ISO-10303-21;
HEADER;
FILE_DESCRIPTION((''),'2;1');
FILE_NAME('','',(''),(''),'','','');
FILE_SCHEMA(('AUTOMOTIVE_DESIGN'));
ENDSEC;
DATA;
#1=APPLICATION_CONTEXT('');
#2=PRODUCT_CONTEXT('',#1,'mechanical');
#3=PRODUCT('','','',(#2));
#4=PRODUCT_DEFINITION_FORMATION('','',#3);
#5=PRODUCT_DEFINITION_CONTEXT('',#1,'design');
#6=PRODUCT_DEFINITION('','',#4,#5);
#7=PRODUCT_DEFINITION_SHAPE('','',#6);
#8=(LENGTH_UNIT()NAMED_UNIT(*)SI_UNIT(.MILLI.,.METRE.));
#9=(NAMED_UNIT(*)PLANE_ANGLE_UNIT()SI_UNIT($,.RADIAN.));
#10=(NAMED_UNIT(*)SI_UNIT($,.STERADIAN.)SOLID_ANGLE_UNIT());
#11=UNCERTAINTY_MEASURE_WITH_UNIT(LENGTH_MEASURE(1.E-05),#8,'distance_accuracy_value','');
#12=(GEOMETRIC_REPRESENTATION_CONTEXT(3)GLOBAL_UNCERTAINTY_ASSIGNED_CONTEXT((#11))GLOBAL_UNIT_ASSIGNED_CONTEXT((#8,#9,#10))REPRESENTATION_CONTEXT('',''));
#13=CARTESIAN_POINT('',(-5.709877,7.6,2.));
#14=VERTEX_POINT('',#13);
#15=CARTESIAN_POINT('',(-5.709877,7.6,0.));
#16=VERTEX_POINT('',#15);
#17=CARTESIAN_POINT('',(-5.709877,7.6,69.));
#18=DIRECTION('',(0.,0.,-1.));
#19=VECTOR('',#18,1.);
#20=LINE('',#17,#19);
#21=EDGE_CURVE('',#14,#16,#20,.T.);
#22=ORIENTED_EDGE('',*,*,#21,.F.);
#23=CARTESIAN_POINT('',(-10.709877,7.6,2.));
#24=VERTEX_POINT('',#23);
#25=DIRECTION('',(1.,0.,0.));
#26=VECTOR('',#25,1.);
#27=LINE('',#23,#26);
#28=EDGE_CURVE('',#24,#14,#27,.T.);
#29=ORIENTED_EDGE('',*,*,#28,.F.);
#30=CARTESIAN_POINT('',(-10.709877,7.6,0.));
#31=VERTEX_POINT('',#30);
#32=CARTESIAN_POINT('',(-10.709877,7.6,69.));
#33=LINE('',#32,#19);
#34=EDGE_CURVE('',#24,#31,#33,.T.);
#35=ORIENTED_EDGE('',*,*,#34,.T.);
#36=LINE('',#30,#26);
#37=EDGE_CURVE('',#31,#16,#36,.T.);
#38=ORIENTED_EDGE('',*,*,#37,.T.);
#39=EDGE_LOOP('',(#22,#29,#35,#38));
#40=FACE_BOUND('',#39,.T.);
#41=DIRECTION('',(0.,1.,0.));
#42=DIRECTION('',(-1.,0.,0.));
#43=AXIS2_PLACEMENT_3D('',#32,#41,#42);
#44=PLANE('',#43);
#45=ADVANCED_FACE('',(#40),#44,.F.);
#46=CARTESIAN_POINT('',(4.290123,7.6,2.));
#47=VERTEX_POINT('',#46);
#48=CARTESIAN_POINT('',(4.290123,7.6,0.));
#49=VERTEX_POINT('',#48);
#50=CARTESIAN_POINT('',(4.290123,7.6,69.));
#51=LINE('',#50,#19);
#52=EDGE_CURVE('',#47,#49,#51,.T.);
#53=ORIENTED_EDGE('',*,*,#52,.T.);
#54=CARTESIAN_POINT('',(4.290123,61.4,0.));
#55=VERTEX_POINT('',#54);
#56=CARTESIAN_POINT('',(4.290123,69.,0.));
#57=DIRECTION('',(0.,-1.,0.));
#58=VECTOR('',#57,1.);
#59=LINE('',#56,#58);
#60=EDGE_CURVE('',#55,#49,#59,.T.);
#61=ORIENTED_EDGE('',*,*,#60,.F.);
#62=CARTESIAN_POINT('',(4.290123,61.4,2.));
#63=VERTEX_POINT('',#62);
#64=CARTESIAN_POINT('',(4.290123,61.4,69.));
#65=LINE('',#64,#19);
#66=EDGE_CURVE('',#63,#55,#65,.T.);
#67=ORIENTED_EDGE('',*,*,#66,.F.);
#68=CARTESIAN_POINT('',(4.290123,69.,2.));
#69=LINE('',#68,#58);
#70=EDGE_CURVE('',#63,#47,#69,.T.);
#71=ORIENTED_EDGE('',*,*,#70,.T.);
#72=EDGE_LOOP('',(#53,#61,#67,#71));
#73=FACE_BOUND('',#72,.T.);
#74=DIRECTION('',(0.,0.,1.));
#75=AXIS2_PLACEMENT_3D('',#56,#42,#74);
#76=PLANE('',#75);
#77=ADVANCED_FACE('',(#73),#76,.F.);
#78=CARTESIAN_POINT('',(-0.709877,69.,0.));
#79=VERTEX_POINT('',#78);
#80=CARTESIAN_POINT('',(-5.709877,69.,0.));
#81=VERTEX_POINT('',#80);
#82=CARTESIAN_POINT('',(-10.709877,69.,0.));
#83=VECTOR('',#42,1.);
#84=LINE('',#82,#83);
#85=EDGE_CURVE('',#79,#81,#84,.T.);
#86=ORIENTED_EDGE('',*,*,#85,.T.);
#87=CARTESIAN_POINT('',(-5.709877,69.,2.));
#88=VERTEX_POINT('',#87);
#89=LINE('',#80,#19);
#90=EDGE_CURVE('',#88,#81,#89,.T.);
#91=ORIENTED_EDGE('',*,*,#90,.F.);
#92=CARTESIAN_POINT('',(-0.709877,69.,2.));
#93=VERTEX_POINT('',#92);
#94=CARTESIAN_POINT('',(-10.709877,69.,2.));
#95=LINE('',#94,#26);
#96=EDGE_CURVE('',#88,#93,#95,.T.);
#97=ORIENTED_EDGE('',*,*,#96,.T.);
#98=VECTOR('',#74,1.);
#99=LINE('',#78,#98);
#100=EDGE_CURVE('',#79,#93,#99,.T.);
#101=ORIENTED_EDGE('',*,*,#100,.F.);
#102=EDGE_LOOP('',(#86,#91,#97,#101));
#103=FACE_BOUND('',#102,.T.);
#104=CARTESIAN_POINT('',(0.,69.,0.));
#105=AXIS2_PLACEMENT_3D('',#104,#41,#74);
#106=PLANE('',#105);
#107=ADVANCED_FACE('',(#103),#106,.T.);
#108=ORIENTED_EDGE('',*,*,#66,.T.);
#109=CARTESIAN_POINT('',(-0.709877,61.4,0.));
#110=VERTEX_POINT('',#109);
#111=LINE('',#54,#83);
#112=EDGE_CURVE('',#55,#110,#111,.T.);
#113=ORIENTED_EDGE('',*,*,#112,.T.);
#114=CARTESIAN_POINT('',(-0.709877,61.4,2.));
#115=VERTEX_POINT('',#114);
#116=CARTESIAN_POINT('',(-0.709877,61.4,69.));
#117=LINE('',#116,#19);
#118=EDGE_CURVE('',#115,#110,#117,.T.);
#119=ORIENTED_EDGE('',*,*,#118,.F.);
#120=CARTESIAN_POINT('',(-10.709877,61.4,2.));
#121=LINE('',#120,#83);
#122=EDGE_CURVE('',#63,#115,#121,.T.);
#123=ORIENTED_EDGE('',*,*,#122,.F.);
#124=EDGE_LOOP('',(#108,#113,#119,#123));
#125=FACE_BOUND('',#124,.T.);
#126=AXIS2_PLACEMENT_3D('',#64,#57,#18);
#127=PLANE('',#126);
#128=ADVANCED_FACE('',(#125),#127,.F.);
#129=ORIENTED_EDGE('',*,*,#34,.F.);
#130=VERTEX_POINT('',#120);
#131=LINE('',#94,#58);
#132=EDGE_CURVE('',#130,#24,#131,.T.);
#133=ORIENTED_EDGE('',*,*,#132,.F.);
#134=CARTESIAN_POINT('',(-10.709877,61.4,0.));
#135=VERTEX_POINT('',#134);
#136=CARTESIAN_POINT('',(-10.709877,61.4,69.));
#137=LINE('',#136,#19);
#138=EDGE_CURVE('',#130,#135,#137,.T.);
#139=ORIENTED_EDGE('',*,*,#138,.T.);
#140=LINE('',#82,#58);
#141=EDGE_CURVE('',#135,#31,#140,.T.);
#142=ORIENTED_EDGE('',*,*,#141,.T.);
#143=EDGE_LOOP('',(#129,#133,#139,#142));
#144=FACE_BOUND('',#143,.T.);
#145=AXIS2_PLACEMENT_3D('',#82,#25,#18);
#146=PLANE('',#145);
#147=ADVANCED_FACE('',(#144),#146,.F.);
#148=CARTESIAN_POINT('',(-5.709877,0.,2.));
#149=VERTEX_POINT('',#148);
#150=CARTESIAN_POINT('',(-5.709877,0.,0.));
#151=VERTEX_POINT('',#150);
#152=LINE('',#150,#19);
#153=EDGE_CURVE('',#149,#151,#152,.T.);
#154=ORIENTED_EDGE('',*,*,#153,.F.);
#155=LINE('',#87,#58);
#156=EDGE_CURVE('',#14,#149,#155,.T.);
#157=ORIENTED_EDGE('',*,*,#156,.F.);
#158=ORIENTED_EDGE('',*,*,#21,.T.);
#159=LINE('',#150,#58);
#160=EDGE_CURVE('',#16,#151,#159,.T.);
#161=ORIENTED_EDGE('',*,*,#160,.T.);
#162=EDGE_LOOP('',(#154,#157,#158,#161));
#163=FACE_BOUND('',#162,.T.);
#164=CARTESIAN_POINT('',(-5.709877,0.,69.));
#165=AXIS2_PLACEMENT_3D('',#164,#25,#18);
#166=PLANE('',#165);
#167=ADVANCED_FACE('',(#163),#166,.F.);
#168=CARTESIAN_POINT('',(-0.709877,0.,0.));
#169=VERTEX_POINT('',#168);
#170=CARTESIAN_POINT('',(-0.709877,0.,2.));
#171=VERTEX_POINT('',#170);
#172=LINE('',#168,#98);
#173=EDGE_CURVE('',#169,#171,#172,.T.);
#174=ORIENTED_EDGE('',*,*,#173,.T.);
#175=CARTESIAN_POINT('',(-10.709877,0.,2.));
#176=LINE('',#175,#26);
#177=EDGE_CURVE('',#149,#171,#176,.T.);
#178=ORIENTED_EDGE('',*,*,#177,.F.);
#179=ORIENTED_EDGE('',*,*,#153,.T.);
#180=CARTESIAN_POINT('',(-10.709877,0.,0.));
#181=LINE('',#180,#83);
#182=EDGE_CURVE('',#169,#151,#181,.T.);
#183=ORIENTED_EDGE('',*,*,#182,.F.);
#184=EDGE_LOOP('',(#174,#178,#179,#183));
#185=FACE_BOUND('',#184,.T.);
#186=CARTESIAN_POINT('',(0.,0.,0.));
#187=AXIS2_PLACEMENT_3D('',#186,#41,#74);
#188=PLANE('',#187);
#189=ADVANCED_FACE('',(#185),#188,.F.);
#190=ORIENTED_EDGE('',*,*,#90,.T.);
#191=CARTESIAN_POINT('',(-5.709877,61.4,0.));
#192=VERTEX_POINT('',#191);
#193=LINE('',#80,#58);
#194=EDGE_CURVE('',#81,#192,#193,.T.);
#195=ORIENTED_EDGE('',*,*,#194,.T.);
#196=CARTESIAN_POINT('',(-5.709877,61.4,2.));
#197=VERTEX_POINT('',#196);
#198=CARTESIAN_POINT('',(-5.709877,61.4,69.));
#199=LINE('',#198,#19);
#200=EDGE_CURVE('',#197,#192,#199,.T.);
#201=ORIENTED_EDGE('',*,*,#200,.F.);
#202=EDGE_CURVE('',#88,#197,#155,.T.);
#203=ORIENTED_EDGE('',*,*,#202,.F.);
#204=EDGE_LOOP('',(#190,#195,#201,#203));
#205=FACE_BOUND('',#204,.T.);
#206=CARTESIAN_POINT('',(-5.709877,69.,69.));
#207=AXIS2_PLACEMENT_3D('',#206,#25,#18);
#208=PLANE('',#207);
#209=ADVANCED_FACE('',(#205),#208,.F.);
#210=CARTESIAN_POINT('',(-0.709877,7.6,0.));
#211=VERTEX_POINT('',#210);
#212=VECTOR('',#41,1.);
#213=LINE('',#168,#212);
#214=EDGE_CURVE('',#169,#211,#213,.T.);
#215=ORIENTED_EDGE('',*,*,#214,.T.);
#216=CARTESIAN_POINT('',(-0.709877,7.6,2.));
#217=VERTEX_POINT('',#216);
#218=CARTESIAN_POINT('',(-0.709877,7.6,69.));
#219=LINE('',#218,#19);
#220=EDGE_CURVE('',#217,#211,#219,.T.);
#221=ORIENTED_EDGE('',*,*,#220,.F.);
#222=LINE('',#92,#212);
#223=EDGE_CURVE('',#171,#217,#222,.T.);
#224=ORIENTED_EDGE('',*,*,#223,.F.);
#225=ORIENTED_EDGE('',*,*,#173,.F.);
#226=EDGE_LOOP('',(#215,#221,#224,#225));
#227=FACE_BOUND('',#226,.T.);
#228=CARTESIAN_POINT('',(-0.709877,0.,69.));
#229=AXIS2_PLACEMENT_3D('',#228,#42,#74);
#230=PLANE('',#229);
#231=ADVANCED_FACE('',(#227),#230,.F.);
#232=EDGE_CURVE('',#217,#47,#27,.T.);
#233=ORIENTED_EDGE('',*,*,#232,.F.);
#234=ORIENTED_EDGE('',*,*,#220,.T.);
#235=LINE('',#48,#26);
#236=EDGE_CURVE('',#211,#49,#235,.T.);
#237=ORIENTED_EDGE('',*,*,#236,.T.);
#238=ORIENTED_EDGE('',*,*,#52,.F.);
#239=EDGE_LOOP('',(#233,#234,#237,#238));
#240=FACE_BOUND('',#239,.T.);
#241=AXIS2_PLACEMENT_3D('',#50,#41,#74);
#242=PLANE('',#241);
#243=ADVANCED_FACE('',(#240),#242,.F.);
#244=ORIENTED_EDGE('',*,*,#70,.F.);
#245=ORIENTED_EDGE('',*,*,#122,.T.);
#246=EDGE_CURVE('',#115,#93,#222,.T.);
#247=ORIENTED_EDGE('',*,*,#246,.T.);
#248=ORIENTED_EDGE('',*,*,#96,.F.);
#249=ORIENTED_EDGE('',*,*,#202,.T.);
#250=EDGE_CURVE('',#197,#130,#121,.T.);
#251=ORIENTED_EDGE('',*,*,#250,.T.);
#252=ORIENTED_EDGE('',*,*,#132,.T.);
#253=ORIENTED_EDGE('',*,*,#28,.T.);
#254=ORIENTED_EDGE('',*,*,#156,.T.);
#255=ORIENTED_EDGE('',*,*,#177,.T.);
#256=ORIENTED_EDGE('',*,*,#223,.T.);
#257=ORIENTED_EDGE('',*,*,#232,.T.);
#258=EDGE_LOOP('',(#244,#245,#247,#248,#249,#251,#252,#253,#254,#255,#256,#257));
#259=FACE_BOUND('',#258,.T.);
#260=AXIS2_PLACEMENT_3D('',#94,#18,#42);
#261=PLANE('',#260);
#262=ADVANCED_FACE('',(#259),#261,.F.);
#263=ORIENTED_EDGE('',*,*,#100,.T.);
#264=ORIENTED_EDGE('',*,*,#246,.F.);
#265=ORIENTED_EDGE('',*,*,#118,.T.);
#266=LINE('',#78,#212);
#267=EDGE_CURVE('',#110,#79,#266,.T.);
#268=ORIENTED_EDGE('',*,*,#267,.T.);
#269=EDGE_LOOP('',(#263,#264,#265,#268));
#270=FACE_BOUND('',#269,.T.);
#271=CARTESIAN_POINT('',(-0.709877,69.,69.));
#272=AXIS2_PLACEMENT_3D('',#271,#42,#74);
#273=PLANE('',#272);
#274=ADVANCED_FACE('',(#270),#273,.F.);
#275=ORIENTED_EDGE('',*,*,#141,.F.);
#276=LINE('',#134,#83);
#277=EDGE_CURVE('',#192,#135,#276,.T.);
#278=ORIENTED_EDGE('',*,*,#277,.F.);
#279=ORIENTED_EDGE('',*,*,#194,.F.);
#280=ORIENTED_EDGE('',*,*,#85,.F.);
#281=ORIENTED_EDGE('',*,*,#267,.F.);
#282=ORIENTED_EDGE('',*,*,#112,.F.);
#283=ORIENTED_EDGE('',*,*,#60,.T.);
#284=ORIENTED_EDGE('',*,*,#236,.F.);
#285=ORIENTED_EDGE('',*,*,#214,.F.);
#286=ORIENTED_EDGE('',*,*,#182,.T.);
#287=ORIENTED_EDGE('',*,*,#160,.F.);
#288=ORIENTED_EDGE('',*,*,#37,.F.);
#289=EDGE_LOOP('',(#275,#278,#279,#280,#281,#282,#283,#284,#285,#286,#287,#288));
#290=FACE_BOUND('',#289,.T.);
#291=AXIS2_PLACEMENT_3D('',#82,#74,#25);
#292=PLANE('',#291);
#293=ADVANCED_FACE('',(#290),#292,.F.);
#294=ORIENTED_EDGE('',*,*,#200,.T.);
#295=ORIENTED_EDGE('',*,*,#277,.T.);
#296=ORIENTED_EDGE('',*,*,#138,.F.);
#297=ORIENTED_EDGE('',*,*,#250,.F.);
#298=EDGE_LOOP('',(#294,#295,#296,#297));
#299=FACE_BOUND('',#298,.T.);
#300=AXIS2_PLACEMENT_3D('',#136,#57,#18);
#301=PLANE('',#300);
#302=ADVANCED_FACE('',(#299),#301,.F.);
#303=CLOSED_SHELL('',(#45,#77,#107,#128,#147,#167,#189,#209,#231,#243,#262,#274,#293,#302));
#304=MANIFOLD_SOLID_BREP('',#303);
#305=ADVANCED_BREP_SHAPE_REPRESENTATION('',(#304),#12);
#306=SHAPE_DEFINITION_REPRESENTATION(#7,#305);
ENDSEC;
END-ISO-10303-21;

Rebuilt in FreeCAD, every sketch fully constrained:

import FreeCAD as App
import Part
import Sketcher

doc = App.newDocument("Part")
params = doc.addObject("Spreadsheet::Sheet", "Params")
for row, (alias, value) in enumerate([
    ("sketch1_width", "15 mm"),
    ("sketch1_height", "2 mm"),
    ("pad1_length", "69 mm"),
    ("sketch2_width", "5 mm"),
    ("sketch2_height", "7.6 mm"),
    ("pocket1_length", "69 mm"),
], start=1):
    params.set(f"A{row}", alias)
    params.set(f"B{row}", "=" + value)
    params.setAlias(f"B{row}", alias)

body = doc.addObject("PartDesign::Body", "Body")

# Sketch on XZ plane
sketch1 = body.newObject("Sketcher::SketchObject", "Sketch")
sketch1.AttachmentSupport = (doc.getObject("XZ_Plane"), [""])
sketch1.MapMode = "FlatFace"
sketch1.addGeometry(Part.LineSegment(App.Vector(-10.709877, 0, 0), App.Vector(-10.709877, 2, 0)), False)
sketch1.addGeometry(Part.LineSegment(App.Vector(-10.709877, 2, 0), App.Vector(4.290123, 2, 0)), False)
sketch1.addGeometry(Part.LineSegment(App.Vector(4.290123, 2, 0), App.Vector(4.290123, 0, 0)), False)
sketch1.addGeometry(Part.LineSegment(App.Vector(4.290123, 0, 0), App.Vector(-10.709877, 0, 0)), False)
sketch1.addConstraint(Sketcher.Constraint("Coincident", 0, 2, 1, 1))
sketch1.addConstraint(Sketcher.Constraint("Coincident", 1, 2, 2, 1))
sketch1.addConstraint(Sketcher.Constraint("Coincident", 2, 2, 3, 1))
sketch1.addConstraint(Sketcher.Constraint("Coincident", 3, 2, 0, 1))
sketch1.addConstraint(Sketcher.Constraint("Vertical", 0))
sketch1.addConstraint(Sketcher.Constraint("Horizontal", 1))
sketch1.addConstraint(Sketcher.Constraint("Vertical", 2))
sketch1.addConstraint(Sketcher.Constraint("Horizontal", 3))
sketch1.addConstraint(Sketcher.Constraint("PointOnObject", 2, 2, -1))
sketch1.addConstraint(Sketcher.Constraint("DistanceX", 1, 1, 1, 2, 15.0))
sketch1.addConstraint(Sketcher.Constraint("DistanceY", 0, 1, 0, 2, 2.0))
sketch1.addConstraint(Sketcher.Constraint("DistanceX", 0, 2, -1, 1, 10.709877))
sketch1.setExpression("Constraints[9]", "Params.sketch1_width")
sketch1.setExpression("Constraints[10]", "Params.sketch1_height")
pad1 = body.newObject("PartDesign::Pad", "Pad")
pad1.Profile = sketch1
pad1.setExpression("Length", "Params.pad1_length")
pad1.Reversed = True

# Sketch on XY plane
sketch2 = body.newObject("Sketcher::SketchObject", "Sketch001")
sketch2.AttachmentSupport = (doc.getObject("XY_Plane"), [""])
sketch2.MapMode = "FlatFace"
sketch2.addGeometry(Part.LineSegment(App.Vector(-5.709877, 69, 0), App.Vector(-5.709877, 61.4, 0)), False)
sketch2.addGeometry(Part.LineSegment(App.Vector(-5.709877, 61.4, 0), App.Vector(-10.709877, 61.4, 0)), False)
sketch2.addGeometry(Part.LineSegment(App.Vector(-10.709877, 61.4, 0), App.Vector(-10.709877, 69, 0)), False)
sketch2.addGeometry(Part.LineSegment(App.Vector(-10.709877, 69, 0), App.Vector(-5.709877, 69, 0)), False)
sketch2.addGeometry(Part.LineSegment(App.Vector(4.290123, 7.6, 0), App.Vector(4.290123, 0, 0)), False)
sketch2.addGeometry(Part.LineSegment(App.Vector(4.290123, 0, 0), App.Vector(-0.709877, 0, 0)), False)
sketch2.addGeometry(Part.LineSegment(App.Vector(-0.709877, 0, 0), App.Vector(-0.709877, 7.6, 0)), False)
sketch2.addGeometry(Part.LineSegment(App.Vector(-0.709877, 7.6, 0), App.Vector(4.290123, 7.6, 0)), False)
sketch2.addGeometry(Part.LineSegment(App.Vector(-5.709877, 7.6, 0), App.Vector(-5.709877, 0, 0)), False)
sketch2.addGeometry(Part.LineSegment(App.Vector(-5.709877, 0, 0), App.Vector(-10.709877, 0, 0)), False)
sketch2.addGeometry(Part.LineSegment(App.Vector(-10.709877, 0, 0), App.Vector(-10.709877, 7.6, 0)), False)
sketch2.addGeometry(Part.LineSegment(App.Vector(-10.709877, 7.6, 0), App.Vector(-5.709877, 7.6, 0)), False)
sketch2.addGeometry(Part.LineSegment(App.Vector(4.290123, 69, 0), App.Vector(4.290123, 61.4, 0)), False)
sketch2.addGeometry(Part.LineSegment(App.Vector(4.290123, 61.4, 0), App.Vector(-0.709877, 61.4, 0)), False)
sketch2.addGeometry(Part.LineSegment(App.Vector(-0.709877, 61.4, 0), App.Vector(-0.709877, 69, 0)), False)
sketch2.addGeometry(Part.LineSegment(App.Vector(-0.709877, 69, 0), App.Vector(4.290123, 69, 0)), False)
sketch2.addConstraint(Sketcher.Constraint("Coincident", 0, 2, 1, 1))
sketch2.addConstraint(Sketcher.Constraint("Coincident", 1, 2, 2, 1))
sketch2.addConstraint(Sketcher.Constraint("Coincident", 2, 2, 3, 1))
sketch2.addConstraint(Sketcher.Constraint("Coincident", 3, 2, 0, 1))
sketch2.addConstraint(Sketcher.Constraint("Coincident", 4, 2, 5, 1))
sketch2.addConstraint(Sketcher.Constraint("Coincident", 5, 2, 6, 1))
sketch2.addConstraint(Sketcher.Constraint("Coincident", 6, 2, 7, 1))
sketch2.addConstraint(Sketcher.Constraint("Coincident", 7, 2, 4, 1))
sketch2.addConstraint(Sketcher.Constraint("Coincident", 8, 2, 9, 1))
sketch2.addConstraint(Sketcher.Constraint("Coincident", 9, 2, 10, 1))
sketch2.addConstraint(Sketcher.Constraint("Coincident", 10, 2, 11, 1))
sketch2.addConstraint(Sketcher.Constraint("Coincident", 11, 2, 8, 1))
sketch2.addConstraint(Sketcher.Constraint("Coincident", 12, 2, 13, 1))
sketch2.addConstraint(Sketcher.Constraint("Coincident", 13, 2, 14, 1))
sketch2.addConstraint(Sketcher.Constraint("Coincident", 14, 2, 15, 1))
sketch2.addConstraint(Sketcher.Constraint("Coincident", 15, 2, 12, 1))
sketch2.addConstraint(Sketcher.Constraint("Vertical", 0))
sketch2.addConstraint(Sketcher.Constraint("Horizontal", 1))
sketch2.addConstraint(Sketcher.Constraint("Vertical", 2))
sketch2.addConstraint(Sketcher.Constraint("Horizontal", 3))
sketch2.addConstraint(Sketcher.Constraint("Vertical", 4))
sketch2.addConstraint(Sketcher.Constraint("Horizontal", 5))
sketch2.addConstraint(Sketcher.Constraint("Vertical", 6))
sketch2.addConstraint(Sketcher.Constraint("Horizontal", 7))
sketch2.addConstraint(Sketcher.Constraint("Vertical", 8))
sketch2.addConstraint(Sketcher.Constraint("Horizontal", 9))
sketch2.addConstraint(Sketcher.Constraint("Vertical", 10))
sketch2.addConstraint(Sketcher.Constraint("Horizontal", 11))
sketch2.addConstraint(Sketcher.Constraint("Vertical", 12))
sketch2.addConstraint(Sketcher.Constraint("Horizontal", 13))
sketch2.addConstraint(Sketcher.Constraint("Vertical", 14))
sketch2.addConstraint(Sketcher.Constraint("Horizontal", 15))
sketch2.addConstraint(Sketcher.Constraint("PointOnObject", 4, 2, -1))
sketch2.addConstraint(Sketcher.Constraint("PointOnObject", 8, 2, -1))
sketch2.addConstraint(Sketcher.Constraint("Horizontal", 7, 2, 10, 2))
sketch2.addConstraint(Sketcher.Constraint("Horizontal", 1, 2, 12, 2))
sketch2.addConstraint(Sketcher.Constraint("Horizontal", 3, 2, 14, 2))
sketch2.addConstraint(Sketcher.Constraint("Vertical", 3, 2, 8, 2))
sketch2.addConstraint(Sketcher.Constraint("Vertical", 2, 2, 9, 2))
sketch2.addConstraint(Sketcher.Constraint("Vertical", 7, 2, 12, 2))
sketch2.addConstraint(Sketcher.Constraint("Vertical", 6, 2, 13, 2))
sketch2.addConstraint(Sketcher.Constraint("Equal", 3, 5))
sketch2.addConstraint(Sketcher.Constraint("Equal", 2, 4))
sketch2.addConstraint(Sketcher.Constraint("DistanceX", 1, 2, 1, 1, 5.0))
sketch2.addConstraint(Sketcher.Constraint("DistanceY", 0, 2, 0, 1, 7.6))
sketch2.addConstraint(Sketcher.Constraint("DistanceY", -1, 1, 2, 2, 69.0))
sketch2.addConstraint(Sketcher.Constraint("DistanceX", 0, 2, 4, 2, 10.0))
sketch2.addConstraint(Sketcher.Constraint("DistanceX", 0, 2, -1, 1, 5.709877))
sketch2.setExpression("Constraints[43]", "Params.sketch2_width")
sketch2.setExpression("Constraints[44]", "Params.sketch2_height")
pocket1 = body.newObject("PartDesign::Pocket", "Pocket")
pocket1.Profile = sketch2
pocket1.setExpression("Length", "Params.pocket1_length")
pocket1.Reversed = True

doc.recompute()
